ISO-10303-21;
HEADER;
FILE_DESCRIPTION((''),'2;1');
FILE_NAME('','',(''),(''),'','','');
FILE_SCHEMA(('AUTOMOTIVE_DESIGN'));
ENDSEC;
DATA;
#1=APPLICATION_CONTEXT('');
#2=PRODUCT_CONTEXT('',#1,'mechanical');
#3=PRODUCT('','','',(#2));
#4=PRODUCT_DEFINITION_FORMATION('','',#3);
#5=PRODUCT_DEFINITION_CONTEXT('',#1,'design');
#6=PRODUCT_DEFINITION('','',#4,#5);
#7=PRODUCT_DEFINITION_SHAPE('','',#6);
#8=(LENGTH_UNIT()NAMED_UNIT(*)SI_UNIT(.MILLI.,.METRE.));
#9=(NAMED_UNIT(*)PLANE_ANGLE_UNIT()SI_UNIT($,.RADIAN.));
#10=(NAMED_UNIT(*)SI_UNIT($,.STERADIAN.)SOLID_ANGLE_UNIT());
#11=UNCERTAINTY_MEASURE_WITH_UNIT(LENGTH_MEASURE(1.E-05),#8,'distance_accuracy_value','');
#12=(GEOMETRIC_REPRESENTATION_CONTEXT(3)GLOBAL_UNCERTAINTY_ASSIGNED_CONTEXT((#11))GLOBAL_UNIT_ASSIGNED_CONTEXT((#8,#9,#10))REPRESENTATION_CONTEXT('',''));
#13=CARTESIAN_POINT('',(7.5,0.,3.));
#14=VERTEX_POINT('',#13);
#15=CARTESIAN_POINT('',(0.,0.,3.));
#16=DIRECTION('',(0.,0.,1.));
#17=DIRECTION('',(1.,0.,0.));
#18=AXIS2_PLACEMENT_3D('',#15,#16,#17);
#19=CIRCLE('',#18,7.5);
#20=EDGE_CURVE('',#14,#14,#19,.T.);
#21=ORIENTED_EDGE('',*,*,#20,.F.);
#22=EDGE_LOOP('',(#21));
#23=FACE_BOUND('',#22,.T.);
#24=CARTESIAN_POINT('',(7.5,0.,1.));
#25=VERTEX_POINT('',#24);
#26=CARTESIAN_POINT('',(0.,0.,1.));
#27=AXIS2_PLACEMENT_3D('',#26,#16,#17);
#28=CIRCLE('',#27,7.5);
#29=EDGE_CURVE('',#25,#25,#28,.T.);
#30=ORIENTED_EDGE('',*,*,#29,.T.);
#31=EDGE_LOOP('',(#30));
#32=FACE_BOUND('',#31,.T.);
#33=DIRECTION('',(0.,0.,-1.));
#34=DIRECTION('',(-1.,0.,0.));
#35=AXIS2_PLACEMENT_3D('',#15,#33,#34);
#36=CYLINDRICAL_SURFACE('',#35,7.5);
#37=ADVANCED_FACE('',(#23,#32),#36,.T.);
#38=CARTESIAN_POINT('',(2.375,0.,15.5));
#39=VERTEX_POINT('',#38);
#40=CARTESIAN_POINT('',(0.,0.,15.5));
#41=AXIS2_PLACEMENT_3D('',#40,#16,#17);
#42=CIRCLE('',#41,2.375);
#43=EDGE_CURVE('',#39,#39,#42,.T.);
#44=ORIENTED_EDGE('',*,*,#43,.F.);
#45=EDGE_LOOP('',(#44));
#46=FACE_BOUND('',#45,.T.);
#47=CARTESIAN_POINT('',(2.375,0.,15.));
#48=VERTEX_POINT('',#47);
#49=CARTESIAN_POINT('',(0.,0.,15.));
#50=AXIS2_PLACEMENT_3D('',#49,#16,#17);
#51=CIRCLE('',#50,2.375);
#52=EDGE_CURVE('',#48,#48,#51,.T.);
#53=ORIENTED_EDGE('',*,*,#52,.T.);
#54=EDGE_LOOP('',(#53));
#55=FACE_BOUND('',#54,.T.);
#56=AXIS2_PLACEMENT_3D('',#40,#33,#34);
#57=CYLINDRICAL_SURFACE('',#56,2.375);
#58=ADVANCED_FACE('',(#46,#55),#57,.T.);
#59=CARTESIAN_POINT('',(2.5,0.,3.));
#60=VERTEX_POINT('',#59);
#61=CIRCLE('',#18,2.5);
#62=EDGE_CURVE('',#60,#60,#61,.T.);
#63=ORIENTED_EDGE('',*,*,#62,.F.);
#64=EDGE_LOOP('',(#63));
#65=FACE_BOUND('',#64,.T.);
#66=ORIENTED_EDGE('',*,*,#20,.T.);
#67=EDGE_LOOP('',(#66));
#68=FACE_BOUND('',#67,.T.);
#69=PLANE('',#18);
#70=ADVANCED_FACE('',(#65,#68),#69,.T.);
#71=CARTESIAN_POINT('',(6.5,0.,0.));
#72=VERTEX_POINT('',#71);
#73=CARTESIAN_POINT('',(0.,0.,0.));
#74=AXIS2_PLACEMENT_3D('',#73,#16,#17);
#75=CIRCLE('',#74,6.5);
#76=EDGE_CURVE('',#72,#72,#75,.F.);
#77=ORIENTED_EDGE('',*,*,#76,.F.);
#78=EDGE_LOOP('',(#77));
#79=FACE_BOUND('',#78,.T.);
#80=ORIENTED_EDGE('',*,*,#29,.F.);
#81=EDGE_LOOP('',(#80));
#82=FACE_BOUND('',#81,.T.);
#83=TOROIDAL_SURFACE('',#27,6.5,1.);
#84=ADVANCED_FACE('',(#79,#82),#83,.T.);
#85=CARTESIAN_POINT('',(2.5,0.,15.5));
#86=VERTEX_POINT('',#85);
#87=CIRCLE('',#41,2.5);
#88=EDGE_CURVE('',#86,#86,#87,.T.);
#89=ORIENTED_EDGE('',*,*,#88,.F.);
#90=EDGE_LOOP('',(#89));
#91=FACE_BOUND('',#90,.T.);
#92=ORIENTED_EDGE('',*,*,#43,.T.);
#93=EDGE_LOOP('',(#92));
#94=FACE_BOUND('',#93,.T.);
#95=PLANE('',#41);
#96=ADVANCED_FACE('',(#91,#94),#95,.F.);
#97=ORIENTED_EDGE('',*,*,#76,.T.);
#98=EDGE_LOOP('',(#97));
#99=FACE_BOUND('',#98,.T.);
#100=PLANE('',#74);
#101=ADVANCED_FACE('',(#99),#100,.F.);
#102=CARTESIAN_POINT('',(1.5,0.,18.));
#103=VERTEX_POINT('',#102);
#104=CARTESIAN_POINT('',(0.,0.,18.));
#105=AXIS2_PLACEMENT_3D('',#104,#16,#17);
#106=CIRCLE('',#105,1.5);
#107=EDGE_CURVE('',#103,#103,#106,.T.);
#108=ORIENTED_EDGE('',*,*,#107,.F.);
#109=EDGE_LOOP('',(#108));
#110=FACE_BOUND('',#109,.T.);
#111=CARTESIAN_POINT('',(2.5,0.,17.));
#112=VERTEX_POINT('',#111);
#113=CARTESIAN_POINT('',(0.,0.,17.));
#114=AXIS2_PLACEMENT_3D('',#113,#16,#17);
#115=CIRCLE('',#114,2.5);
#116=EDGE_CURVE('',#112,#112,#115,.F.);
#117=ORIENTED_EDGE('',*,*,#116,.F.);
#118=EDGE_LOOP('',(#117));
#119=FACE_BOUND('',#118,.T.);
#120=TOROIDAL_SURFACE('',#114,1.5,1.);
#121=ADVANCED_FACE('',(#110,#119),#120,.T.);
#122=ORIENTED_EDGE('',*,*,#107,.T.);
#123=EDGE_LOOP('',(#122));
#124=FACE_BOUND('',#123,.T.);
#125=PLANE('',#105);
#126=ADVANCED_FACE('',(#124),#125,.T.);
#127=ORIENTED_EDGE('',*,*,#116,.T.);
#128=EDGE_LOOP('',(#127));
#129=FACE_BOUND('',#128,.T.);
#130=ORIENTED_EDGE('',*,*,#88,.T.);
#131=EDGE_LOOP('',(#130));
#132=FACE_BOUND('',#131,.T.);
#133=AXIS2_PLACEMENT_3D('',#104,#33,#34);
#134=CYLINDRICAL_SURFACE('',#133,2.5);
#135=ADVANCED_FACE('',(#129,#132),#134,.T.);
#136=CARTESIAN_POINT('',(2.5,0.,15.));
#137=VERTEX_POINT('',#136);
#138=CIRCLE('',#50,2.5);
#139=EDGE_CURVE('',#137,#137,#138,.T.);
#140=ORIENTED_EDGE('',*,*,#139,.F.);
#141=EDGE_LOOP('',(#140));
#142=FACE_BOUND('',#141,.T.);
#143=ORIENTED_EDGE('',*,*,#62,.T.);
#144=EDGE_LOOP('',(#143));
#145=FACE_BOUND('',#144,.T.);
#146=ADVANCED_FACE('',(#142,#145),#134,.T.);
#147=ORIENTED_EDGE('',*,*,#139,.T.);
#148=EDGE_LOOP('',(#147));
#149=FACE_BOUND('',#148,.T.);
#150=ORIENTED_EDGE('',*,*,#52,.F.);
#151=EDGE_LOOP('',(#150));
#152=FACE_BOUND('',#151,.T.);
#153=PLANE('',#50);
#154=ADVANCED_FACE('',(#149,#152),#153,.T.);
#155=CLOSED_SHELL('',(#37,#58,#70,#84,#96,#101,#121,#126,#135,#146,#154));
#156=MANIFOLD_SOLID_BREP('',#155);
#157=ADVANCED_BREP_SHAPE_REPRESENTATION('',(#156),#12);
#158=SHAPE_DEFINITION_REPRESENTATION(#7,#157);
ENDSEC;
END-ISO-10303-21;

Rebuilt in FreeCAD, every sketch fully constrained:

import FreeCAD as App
import Part
import Sketcher


def edges_at(feature, points):
    """Names of the edges that pass closest to the given points."""
    edges = feature.Shape.Edges
    near = lambda p: min(range(len(edges)), key=lambda i: edges[i].distToShape(Part.Vertex(*p))[0])
    return sorted({f"Edge{near(p) + 1}" for p in points})

doc = App.newDocument("Part")
body = doc.addObject("PartDesign::Body", "Body")

sketch1 = doc.addObject("Sketcher::SketchObject", "Sketch")
body.addObject(sketch1)
sketch1.AttachmentSupport = (doc.XY_Plane, [""])
sketch1.MapMode = "FlatFace"
sketch1.addGeometry(Part.Circle(App.Vector(0, 0, 0), App.Vector(0, 0, 1), 8), False)
sketch1.addConstraint([
    Sketcher.Constraint("Coincident", 0, 3, -1, 1),
    Sketcher.Constraint("Diameter", 0, 15.0),
])
pad1 = doc.addObject("PartDesign::Pad", "Pad")
body.addObject(pad1)
pad1.Profile = sketch1
pad1.Length = 3

sketch2 = doc.addObject("Sketcher::SketchObject", "Sketch001")
body.addObject(sketch2)
sketch2.AttachmentSupport = (doc.XY_Plane, [""])
sketch2.MapMode = "FlatFace"
sketch2.AttachmentOffset = App.Placement(App.Vector(0, 0, 3), App.Rotation())
sketch2.addGeometry(Part.Circle(App.Vector(0, 0, 0), App.Vector(0, 0, 1), 2.5), False)
sketch2.addConstraint([
    Sketcher.Constraint("Coincident", 0, 3, -1, 1),
    Sketcher.Constraint("Diameter", 0, 5.0),
])
pad2 = doc.addObject("PartDesign::Pad", "Pad001")
body.addObject(pad2)
pad2.Profile = sketch2
pad2.Length = 15
doc.recompute()

fillet = doc.addObject("PartDesign::Fillet", "Fillet")
body.addObject(fillet)
fillet.Base = (pad2, edges_at(pad2, [(-7.5, 0, 0), (-2.5, 0, 18)]))
fillet.Radius = 1

sketch3 = doc.addObject("Sketcher::SketchObject", "Sketch002")
body.addObject(sketch3)
sketch3.AttachmentSupport = (doc.XY_Plane, [""])
sketch3.MapMode = "FlatFace"
sketch3.AttachmentOffset = App.Placement(App.Vector(0, 0, 15), App.Rotation())
sketch3.addGeometry([
    Part.Circle(App.Vector(0, 0, 0), App.Vector(0, 0, 1), 12.4),
    Part.Circle(App.Vector(0, 0, 0), App.Vector(0, 0, 1), 2.4),
], False)
sketch3.addConstraint([
    Sketcher.Constraint("Coincident", 0, 3, -1, 1),
    Sketcher.Constraint("Coincident", 1, 3, -1, 1),
    Sketcher.Constraint("Diameter", 0, 24.75),
    Sketcher.Constraint("Diameter", 1, 4.75),
])
pocket1 = doc.addObject("PartDesign::Pocket", "Pocket")
body.addObject(pocket1)
pocket1.Profile = sketch3
pocket1.Length = 0.5
pocket1.Reversed = True

doc.recompute()
